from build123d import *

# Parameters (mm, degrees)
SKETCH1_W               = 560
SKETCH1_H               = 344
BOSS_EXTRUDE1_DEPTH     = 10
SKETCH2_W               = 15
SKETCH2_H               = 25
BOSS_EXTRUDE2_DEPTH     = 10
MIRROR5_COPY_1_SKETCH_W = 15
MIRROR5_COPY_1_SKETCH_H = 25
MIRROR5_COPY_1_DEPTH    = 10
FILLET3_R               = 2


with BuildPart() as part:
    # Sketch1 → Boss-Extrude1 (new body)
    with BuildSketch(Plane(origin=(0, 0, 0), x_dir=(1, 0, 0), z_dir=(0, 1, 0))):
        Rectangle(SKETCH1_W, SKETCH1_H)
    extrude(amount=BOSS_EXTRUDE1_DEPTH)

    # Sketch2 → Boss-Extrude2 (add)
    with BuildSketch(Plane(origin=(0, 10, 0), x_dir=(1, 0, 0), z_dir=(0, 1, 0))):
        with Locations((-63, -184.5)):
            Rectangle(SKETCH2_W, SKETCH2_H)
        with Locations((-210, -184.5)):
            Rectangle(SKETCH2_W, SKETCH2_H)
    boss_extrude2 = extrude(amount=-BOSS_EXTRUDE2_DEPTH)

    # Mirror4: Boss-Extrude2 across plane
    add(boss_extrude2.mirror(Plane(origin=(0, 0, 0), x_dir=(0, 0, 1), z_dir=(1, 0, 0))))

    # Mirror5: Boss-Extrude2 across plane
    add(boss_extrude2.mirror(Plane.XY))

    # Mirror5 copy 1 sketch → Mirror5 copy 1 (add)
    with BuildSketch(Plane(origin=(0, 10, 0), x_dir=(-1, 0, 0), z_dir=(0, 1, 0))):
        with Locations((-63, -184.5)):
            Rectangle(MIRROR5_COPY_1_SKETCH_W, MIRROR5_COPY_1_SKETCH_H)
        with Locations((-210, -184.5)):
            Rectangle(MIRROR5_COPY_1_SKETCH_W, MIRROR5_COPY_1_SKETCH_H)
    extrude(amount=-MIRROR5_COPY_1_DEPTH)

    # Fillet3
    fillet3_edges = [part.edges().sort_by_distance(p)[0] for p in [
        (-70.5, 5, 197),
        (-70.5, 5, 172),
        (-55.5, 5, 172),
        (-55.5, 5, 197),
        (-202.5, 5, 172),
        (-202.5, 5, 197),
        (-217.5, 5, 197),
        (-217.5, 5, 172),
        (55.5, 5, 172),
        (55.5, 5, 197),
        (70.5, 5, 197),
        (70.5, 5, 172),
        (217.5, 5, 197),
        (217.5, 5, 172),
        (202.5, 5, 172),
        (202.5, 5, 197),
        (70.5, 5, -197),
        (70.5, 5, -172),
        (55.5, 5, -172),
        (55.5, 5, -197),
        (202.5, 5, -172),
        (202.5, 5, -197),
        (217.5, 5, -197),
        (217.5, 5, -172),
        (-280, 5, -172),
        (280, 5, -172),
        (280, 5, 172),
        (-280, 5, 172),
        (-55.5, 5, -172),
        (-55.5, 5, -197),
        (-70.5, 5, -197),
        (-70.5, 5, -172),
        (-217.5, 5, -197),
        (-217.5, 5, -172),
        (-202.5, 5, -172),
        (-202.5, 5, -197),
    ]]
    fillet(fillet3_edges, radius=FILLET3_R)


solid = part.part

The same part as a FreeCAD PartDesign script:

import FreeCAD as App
import Part
import Sketcher


def edges_at(feature, points):
    """Names of the edges that pass closest to the given points."""
    edges = feature.Shape.Edges
    near = lambda p: min(range(len(edges)), key=lambda i: edges[i].distToShape(Part.Vertex(*p))[0])
    return sorted({f"Edge{near(p) + 1}" for p in points})


def add_polygon(sketch, points):
    """Adds a closed chain of lines whose ends are joined by coincident constraints."""
    first, n = sketch.GeometryCount, len(points)
    for a, b in zip(points, points[1:] + points[:1]):
        sketch.addGeometry(Part.LineSegment(App.Vector(*a, 0), App.Vector(*b, 0)), False)
    for i in range(n):
        sketch.addConstraint(Sketcher.Constraint("Coincident", first + i, 2, first + (i + 1) % n, 1))

doc = App.newDocument("Part")
body = doc.addObject("PartDesign::Body", "Body")

# Sketch on XZ plane
sketch1 = doc.addObject("Sketcher::SketchObject", "Sketch")
body.addObject(sketch1)
sketch1.AttachmentSupport = (doc.XZ_Plane, [""])
sketch1.MapMode = "FlatFace"
add_polygon(sketch1, [(-280, -172), (-280, 172), (280, 172), (280, -172)])  # lines 0-3
sketch1.addConstraint([
    Sketcher.Constraint("Vertical", 0),
    Sketcher.Constraint("Horizontal", 1),
    Sketcher.Constraint("Vertical", 2),
    Sketcher.Constraint("Horizontal", 3),
    Sketcher.Constraint("Symmetric", 0, 2, 2, 2, -1, 1),
    Sketcher.Constraint("DistanceX", 1, 1, 1, 2, 560.0),
    Sketcher.Constraint("DistanceY", 0, 1, 0, 2, 344.0),
])
pad1 = doc.addObject("PartDesign::Pad", "Pad")
body.addObject(pad1)
pad1.Profile = sketch1
pad1.Length = 10
pad1.Reversed = True

# Sketch on XZ plane
sketch2 = doc.addObject("Sketcher::SketchObject", "Sketch001")
body.addObject(sketch2)
sketch2.AttachmentSupport = (doc.XZ_Plane, [""])
sketch2.MapMode = "FlatFace"
sketch2.AttachmentOffset = App.Placement(App.Vector(0, 0, -10), App.Rotation())
add_polygon(sketch2, [(-70, 172), (-70, 197), (-56, 197), (-56, 172)])  # lines 0-3
add_polygon(sketch2, [(-218, 172), (-218, 197), (-202, 197), (-202, 172)])  # lines 4-7
sketch2.addConstraint([
    Sketcher.Constraint("Vertical", 0),
    Sketcher.Constraint("Horizontal", 1),
    Sketcher.Constraint("Vertical", 2),
    Sketcher.Constraint("Horizontal", 3),
    Sketcher.Constraint("Vertical", 4),
    Sketcher.Constraint("Horizontal", 5),
    Sketcher.Constraint("Vertical", 6),
    Sketcher.Constraint("Horizontal", 7),
    Sketcher.Constraint("Horizontal", 1, 2, 4, 2),
    Sketcher.Constraint("Horizontal", 3, 2, 6, 2),
    Sketcher.Constraint("Equal", 3, 5),
    Sketcher.Constraint("DistanceX", 1, 1, 1, 2, 15.0),
    Sketcher.Constraint("DistanceY", 0, 1, 0, 2, 25.0),
    Sketcher.Constraint("DistanceY", -1, 1, 0, 2, 197.0),
    Sketcher.Constraint("DistanceX", 4, 2, 0, 2, 147.0),
    Sketcher.Constraint("DistanceX", 0, 2, -1, 1, 70.5),
])
pad2 = doc.addObject("PartDesign::Pad", "Pad001")
body.addObject(pad2)
pad2.Profile = sketch2
pad2.Length = 10
doc.recompute()

mirrored = doc.addObject("PartDesign::Mirrored", "Mirrored")
body.addObject(mirrored)
mirrored.Originals = [pad2]
mirrored.MirrorPlane = (doc.YZ_Plane, [""])
body.Tip = mirrored
doc.recompute()

mirrored2 = doc.addObject("PartDesign::Mirrored", "Mirrored001")
body.addObject(mirrored2)
mirrored2.Originals = [pad2]
mirrored2.MirrorPlane = (doc.XY_Plane, [""])
body.Tip = mirrored2

# Sketch on XZ plane
sketch3 = doc.addObject("Sketcher::SketchObject", "Sketch002")
body.addObject(sketch3)
sketch3.AttachmentSupport = (doc.XZ_Plane, [""])
sketch3.MapMode = "FlatFace"
sketch3.AttachmentOffset = App.Placement(App.Vector(0, 0, -10), App.Rotation())
add_polygon(sketch3, [(70, -172), (70, -197), (56, -197), (56, -172)])  # lines 0-3
add_polygon(sketch3, [(218, -172), (218, -197), (202, -197), (202, -172)])  # lines 4-7
sketch3.addConstraint([
    Sketcher.Constraint("Vertical", 0),
    Sketcher.Constraint("Horizontal", 1),
    Sketcher.Constraint("Vertical", 2),
    Sketcher.Constraint("Horizontal", 3),
    Sketcher.Constraint("Vertical", 4),
    Sketcher.Constraint("Horizontal", 5),
    Sketcher.Constraint("Vertical", 6),
    Sketcher.Constraint("Horizontal", 7),
    Sketcher.Constraint("Horizontal", 1, 2, 4, 2),
    Sketcher.Constraint("Horizontal", 3, 2, 6, 2),
    Sketcher.Constraint("Equal", 3, 5),
    Sketcher.Constraint("DistanceX", 1, 2, 1, 1, 15.0),
    Sketcher.Constraint("DistanceY", 0, 2, 0, 1, 25.0),
    Sketcher.Constraint("DistanceY", 0, 2, -1, 1, 197.0),
    Sketcher.Constraint("DistanceX", 0, 2, 4, 2, 147.0),
    Sketcher.Constraint("DistanceX", -1, 1, 0, 2, 70.5),
])
pad3 = doc.addObject("PartDesign::Pad", "Pad002")
body.addObject(pad3)
pad3.Profile = sketch3
pad3.Length = 10
doc.recompute()

fillet = doc.addObject("PartDesign::Fillet", "Fillet")
body.addObject(fillet)
fillet.Base = (pad3, edges_at(pad3, [
    (-70.5, 5, 197),
    (-70.5, 5, 172),
    (-55.5, 5, 172),
    (-55.5, 5, 197),
    (-202.5, 5, 172),
    (-202.5, 5, 197),
    (-217.5, 5, 197),
    (-217.5, 5, 172),
    (55.5, 5, 172),
    (55.5, 5, 197),
    (70.5, 5, 197),
    (70.5, 5, 172),
    (217.5, 5, 197),
    (217.5, 5, 172),
    (202.5, 5, 172),
    (202.5, 5, 197),
    (70.5, 5, -197),
    (70.5, 5, -172),
    (55.5, 5, -172),
    (55.5, 5, -197),
    (202.5, 5, -172),
    (202.5, 5, -197),
    (217.5, 5, -197),
    (217.5, 5, -172),
    (-280, 5, -172),
    (280, 5, -172),
    (280, 5, 172),
    (-280, 5, 172),
    (-55.5, 5, -172),
    (-55.5, 5, -197),
    (-70.5, 5, -197),
    (-70.5, 5, -172),
    (-217.5, 5, -197),
    (-217.5, 5, -172),
    (-202.5, 5, -172),
    (-202.5, 5, -197),
]))
fillet.Radius = 2

doc.recompute()
